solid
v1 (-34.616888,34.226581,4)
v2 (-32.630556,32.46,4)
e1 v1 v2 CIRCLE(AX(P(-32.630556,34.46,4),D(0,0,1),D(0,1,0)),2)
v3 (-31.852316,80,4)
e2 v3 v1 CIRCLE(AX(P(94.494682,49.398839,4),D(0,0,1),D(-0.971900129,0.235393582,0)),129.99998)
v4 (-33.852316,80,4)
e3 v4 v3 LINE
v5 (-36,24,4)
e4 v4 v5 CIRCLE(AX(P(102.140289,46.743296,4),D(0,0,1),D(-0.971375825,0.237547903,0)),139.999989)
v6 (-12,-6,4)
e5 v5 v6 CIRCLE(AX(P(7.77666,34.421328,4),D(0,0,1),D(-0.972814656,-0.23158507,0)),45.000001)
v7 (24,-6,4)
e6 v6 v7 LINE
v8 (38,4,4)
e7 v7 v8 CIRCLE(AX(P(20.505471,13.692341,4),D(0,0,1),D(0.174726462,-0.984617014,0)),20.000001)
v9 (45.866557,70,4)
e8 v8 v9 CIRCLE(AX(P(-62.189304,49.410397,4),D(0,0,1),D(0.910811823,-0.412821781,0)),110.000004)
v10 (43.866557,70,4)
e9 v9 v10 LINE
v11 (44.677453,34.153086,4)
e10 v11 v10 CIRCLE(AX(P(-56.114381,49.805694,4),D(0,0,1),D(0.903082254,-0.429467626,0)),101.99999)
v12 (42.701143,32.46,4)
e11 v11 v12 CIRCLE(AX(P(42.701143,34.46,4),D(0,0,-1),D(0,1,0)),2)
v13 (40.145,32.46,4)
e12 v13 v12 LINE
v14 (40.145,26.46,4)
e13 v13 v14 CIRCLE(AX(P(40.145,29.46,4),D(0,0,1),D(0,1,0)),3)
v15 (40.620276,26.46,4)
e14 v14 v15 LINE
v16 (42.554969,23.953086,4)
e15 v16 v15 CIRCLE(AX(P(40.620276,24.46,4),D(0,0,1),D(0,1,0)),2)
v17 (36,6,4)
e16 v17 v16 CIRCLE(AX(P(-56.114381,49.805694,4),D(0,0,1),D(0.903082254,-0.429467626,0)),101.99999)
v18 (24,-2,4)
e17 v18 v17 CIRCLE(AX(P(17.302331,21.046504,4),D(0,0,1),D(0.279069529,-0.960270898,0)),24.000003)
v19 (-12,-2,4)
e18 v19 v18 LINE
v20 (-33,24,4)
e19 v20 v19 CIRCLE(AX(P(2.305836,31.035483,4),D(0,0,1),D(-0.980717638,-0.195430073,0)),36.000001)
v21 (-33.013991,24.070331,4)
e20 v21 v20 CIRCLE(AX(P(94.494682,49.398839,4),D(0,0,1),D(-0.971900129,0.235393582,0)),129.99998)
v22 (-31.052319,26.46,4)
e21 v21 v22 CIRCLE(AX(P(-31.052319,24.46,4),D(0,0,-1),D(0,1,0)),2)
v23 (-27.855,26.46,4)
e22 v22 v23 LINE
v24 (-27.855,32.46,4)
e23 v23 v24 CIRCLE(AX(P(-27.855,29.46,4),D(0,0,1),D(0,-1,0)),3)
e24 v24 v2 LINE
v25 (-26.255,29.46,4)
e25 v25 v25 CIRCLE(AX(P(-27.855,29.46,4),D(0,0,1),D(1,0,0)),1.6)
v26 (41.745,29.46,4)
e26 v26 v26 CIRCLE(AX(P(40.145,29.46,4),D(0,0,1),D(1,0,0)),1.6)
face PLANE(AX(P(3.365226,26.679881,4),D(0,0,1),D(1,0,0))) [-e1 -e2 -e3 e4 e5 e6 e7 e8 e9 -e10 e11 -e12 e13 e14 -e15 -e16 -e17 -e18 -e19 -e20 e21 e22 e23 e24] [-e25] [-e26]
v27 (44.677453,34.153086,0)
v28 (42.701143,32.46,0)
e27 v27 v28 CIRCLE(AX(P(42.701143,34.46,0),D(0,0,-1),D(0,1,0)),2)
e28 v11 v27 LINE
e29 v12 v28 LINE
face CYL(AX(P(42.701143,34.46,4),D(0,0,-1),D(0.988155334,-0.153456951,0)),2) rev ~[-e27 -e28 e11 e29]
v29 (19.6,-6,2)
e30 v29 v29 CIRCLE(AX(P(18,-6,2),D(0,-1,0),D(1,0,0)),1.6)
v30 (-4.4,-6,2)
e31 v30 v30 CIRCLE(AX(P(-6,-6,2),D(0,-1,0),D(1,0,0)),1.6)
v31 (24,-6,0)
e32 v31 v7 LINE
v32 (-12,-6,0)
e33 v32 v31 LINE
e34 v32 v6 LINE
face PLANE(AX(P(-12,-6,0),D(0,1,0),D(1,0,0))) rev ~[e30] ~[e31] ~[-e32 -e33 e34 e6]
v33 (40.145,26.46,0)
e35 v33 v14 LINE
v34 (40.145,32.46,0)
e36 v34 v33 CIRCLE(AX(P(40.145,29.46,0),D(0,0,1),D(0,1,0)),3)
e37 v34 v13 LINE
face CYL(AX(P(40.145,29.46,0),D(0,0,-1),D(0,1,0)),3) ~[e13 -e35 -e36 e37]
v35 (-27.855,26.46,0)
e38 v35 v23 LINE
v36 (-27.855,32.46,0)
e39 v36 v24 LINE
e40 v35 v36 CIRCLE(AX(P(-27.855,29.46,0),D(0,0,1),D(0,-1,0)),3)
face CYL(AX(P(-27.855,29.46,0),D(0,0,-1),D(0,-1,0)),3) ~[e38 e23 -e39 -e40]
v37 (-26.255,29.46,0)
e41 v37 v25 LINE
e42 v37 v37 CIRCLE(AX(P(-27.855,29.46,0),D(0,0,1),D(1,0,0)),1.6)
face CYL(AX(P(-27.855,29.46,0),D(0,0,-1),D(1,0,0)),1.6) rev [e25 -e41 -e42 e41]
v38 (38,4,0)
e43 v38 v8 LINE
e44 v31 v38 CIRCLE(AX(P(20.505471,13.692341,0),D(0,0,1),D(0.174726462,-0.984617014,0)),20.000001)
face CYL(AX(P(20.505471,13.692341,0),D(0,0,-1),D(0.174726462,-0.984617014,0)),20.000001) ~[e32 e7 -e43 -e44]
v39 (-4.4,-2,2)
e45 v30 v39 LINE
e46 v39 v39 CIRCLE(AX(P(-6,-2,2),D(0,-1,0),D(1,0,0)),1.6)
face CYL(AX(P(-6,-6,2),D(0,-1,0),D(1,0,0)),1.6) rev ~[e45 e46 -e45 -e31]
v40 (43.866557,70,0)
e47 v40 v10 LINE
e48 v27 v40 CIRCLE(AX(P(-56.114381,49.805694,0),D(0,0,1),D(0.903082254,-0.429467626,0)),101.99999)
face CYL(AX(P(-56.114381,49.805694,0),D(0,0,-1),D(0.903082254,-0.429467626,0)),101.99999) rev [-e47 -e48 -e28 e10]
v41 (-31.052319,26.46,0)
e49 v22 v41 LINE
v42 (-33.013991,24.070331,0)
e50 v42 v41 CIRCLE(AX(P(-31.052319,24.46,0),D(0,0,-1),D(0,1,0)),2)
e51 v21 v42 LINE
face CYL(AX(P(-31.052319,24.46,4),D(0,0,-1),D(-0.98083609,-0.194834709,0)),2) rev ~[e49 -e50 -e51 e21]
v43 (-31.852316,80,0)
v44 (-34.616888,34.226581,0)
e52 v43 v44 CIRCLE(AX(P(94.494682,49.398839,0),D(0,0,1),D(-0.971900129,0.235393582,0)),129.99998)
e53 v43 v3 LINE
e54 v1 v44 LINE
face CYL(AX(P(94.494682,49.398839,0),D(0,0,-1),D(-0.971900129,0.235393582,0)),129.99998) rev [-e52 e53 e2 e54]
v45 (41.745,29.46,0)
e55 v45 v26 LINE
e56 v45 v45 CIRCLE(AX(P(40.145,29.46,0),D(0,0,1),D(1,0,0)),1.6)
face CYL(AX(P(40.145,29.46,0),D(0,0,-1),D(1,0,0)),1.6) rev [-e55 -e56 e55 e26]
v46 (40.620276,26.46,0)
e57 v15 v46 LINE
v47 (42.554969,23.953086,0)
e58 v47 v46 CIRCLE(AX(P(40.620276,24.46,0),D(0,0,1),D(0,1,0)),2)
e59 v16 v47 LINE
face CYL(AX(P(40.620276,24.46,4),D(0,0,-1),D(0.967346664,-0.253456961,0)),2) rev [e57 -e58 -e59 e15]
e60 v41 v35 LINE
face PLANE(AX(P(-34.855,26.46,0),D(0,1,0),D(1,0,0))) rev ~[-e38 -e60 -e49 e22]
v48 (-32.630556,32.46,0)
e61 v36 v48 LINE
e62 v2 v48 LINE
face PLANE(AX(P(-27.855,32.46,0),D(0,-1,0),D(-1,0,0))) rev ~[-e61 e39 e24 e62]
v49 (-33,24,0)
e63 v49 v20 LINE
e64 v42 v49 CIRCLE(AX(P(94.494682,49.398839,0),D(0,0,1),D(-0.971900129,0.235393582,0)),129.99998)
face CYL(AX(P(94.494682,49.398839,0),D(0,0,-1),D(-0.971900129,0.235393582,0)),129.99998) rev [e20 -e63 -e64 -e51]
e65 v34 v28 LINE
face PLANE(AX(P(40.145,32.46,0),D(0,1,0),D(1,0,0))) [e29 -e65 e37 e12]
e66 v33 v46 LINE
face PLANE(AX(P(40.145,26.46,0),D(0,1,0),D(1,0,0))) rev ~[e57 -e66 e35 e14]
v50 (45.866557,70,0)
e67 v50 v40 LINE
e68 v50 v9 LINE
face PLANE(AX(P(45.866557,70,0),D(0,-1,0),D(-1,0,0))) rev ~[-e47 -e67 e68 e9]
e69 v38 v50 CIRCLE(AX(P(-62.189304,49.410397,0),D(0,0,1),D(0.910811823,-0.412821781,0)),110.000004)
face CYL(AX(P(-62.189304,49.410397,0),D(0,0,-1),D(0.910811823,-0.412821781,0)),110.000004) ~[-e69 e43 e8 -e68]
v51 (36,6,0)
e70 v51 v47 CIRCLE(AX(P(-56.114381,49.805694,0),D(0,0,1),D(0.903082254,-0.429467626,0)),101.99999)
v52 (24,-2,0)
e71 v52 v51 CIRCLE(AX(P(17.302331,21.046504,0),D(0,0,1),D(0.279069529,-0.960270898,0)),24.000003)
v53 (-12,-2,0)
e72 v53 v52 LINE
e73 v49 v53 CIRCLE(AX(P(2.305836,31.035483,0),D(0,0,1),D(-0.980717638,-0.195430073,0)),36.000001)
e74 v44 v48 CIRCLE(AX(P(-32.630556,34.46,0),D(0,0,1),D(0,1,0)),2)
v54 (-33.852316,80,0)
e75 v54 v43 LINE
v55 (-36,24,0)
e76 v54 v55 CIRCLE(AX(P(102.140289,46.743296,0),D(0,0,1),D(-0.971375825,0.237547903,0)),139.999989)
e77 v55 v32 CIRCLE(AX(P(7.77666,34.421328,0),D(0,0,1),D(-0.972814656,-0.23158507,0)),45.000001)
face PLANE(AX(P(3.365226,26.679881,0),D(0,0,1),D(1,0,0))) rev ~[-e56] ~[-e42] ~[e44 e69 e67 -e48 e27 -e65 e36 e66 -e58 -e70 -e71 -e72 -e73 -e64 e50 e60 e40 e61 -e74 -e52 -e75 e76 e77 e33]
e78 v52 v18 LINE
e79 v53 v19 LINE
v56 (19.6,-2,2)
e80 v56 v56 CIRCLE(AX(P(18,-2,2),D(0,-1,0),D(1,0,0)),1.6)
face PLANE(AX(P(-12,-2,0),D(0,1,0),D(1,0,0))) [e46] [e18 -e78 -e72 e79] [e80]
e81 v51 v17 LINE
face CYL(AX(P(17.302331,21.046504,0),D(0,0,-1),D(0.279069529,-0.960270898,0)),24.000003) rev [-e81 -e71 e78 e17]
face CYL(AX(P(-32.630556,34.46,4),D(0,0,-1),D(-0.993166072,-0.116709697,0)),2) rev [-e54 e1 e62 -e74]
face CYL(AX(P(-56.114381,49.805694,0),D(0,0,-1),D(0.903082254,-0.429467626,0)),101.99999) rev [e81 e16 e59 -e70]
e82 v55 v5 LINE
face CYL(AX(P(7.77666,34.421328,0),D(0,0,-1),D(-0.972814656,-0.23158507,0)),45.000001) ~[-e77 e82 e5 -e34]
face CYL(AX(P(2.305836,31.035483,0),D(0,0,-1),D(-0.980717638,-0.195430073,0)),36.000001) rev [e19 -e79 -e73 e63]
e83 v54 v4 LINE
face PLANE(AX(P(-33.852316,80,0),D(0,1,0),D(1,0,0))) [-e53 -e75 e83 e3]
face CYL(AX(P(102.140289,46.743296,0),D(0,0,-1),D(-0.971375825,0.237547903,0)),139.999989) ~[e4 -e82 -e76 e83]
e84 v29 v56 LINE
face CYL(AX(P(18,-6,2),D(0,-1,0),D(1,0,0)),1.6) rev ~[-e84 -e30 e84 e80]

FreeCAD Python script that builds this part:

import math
import FreeCAD as App
import Part
import Sketcher

V = App.Vector
Q = App.Units.Quantity


def edges_at(feature, points):
    """Names of the edges that pass closest to the given points."""
    edges = feature.Shape.Edges
    near = lambda p: min(range(len(edges)), key=lambda i: edges[i].distToShape(Part.Vertex(*p))[0])
    return sorted({f"Edge{near(p) + 1}" for p in points})

doc = App.newDocument("Part")
body = doc.addObject("PartDesign::Body", "Body")

sketch1 = body.newObject("Sketcher::SketchObject", "Sketch")
sketch1.AttachmentSupport = (doc.getObject("XY_Plane"), [""])
sketch1.MapMode = "FlatFace"
sketch1.addGeometry([
    Part.ArcOfCircle(Part.Circle(V(20.5, 13.7, 0), V(0, 0, 1), 20), math.radians(-80), math.radians(-29)),
    Part.ArcOfCircle(Part.Circle(V(-62.2, 49.4, 0), V(0, 0, 1), 110), math.radians(-24), math.radians(11)),
    Part.LineSegment(V(45.9, 70, 0), V(43.9, 70, 0)),
    Part.ArcOfCircle(Part.Circle(V(-56.1, 49.8, 0), V(0, 0, 1), 102), math.radians(-25), math.radians(11)),
    Part.ArcOfCircle(Part.Circle(V(17.3, 21, 0), V(0, 0, 1), 24), math.radians(-74), math.radians(-39)),
    Part.LineSegment(V(24, -2, 0), V(-12, -2, 0)),
    Part.ArcOfCircle(Part.Circle(V(2.3, 31, 0), V(0, 0, 1), 36), math.radians(-169), math.radians(-113)),
    Part.ArcOfCircle(Part.Circle(V(94.5, 49.4, 0), V(0, 0, 1), 130), math.radians(166), math.radians(191)),
    Part.LineSegment(V(-31.9, 80, 0), V(-33.9, 80, 0)),
    Part.ArcOfCircle(Part.Circle(V(102.1, 46.7, 0), V(0, 0, 1), 140), math.radians(166), math.radians(189)),
    Part.ArcOfCircle(Part.Circle(V(7.8, 34.4, 0), V(0, 0, 1), 45), math.radians(-167), math.radians(-116)),
    Part.LineSegment(V(-12, -6, 0), V(24, -6, 0)),
], False)
sketch1.addConstraint([
    Sketcher.Constraint("Coincident", 0, 2, 1, 1),
    Sketcher.Constraint("Coincident", 1, 2, 2, 1),
    Sketcher.Constraint("Coincident", 2, 2, 3, 2),
    Sketcher.Constraint("Coincident", 3, 1, 4, 2),
    Sketcher.Constraint("Coincident", 4, 1, 5, 1),
    Sketcher.Constraint("Coincident", 5, 2, 6, 2),
    Sketcher.Constraint("Coincident", 6, 1, 7, 2),
    Sketcher.Constraint("Coincident", 7, 1, 8, 1),
    Sketcher.Constraint("Coincident", 8, 2, 9, 1),
    Sketcher.Constraint("Coincident", 9, 2, 10, 1),
    Sketcher.Constraint("Coincident", 10, 2, 11, 1),
    Sketcher.Constraint("Coincident", 11, 2, 0, 1),
    Sketcher.Constraint("Horizontal", 2),
    Sketcher.Constraint("Horizontal", 5),
    Sketcher.Constraint("Horizontal", 8),
    Sketcher.Constraint("Horizontal", 11),
    Sketcher.Constraint("Horizontal", 6, 1, 9, 2),
    Sketcher.Constraint("Vertical", 5, 2, 10, 2),
    Sketcher.Constraint("Vertical", 4, 1, 11, 2),
    Sketcher.Constraint("Equal", 2, 8),
    Sketcher.Constraint("Radius", 0, Q("20.000001 mm")),
    Sketcher.Constraint("Radius", 6, Q("36.000001 mm")),
    Sketcher.Constraint("Radius", 10, Q("45.000001 mm")),
    Sketcher.Constraint("DistanceX", 2, 2, 2, 1, Q("2 mm")),
    Sketcher.Constraint("DistanceX", 5, 2, 5, 1, Q("36 mm")),
    Sketcher.Constraint("DistanceX", -1, 1, 0, 2, Q("38 mm")),
    Sketcher.Constraint("DistanceY", -1, 1, 0, 2, Q("4 mm")),
    Sketcher.Constraint("DistanceY", -1, 1, 1, 2, Q("70 mm")),
    Sketcher.Constraint("DistanceX", -1, 1, 3, 1, Q("36 mm")),
    Sketcher.Constraint("DistanceY", -1, 1, 3, 1, Q("6 mm")),
    Sketcher.Constraint("DistanceX", -1, 1, 4, 1, Q("24 mm")),
    Sketcher.Constraint("DistanceY", 4, 1, -1, 1, Q("2 mm")),
    Sketcher.Constraint("DistanceX", 6, 1, -1, 1, Q("33 mm")),
    Sketcher.Constraint("DistanceY", -1, 1, 6, 1, Q("24 mm")),
    Sketcher.Constraint("DistanceY", -1, 1, 7, 1, Q("80 mm")),
    Sketcher.Constraint("DistanceX", 9, 2, -1, 1, Q("36 mm")),
    Sketcher.Constraint("DistanceY", 10, 2, -1, 1, Q("6 mm")),
    Sketcher.Constraint("Radius", 3, Q("101.99999 mm")),
    Sketcher.Constraint("Radius", 7, Q("129.99998 mm")),
    Sketcher.Constraint("Radius", 9, Q("139.999989 mm")),
    Sketcher.Constraint("Radius", 1, Q("110.000004 mm")),
    Sketcher.Constraint("Radius", 4, Q("24.000003 mm")),
    Sketcher.Constraint("DistanceX", 3, 3, -1, 1, Q("56.114381 mm")),
    Sketcher.Constraint("DistanceX", -1, 1, 7, 3, Q("94.494682 mm")),
])
pad1 = body.newObject("PartDesign::Pad", "Pad")
pad1.Profile = sketch1
pad1.Length = 4

sketch2 = body.newObject("Sketcher::SketchObject", "Sketch001")
sketch2.AttachmentSupport = (doc.getObject("XZ_Plane"), [""])
sketch2.MapMode = "FlatFace"
sketch2.AttachmentOffset = App.Placement(V(0, 0, 6), App.Rotation())
sketch2.addGeometry([
    Part.Circle(V(-6, 2, 0), V(0, 0, 1), 1.6),
    Part.Circle(V(18, 2, 0), V(0, 0, 1), 1.6),
], False)
sketch2.addConstraint([
    Sketcher.Constraint("Equal", 0, 1),
    Sketcher.Constraint("Horizontal", 0, 3, 1, 3),
    Sketcher.Constraint("Diameter", 0, Q("3.2 mm")),
    Sketcher.Constraint("DistanceX", 0, 3, -1, 1, Q("6 mm")),
    Sketcher.Constraint("DistanceY", -1, 1, 0, 3, Q("2 mm")),
    Sketcher.Constraint("DistanceX", -1, 1, 1, 3, Q("18 mm")),
])
pocket1 = body.newObject("PartDesign::Pocket", "Pocket")
pocket1.Profile = sketch2
pocket1.Type = "ThroughAll"
body2 = doc.addObject("PartDesign::Body", "Body001")
body2.AllowCompound = True

sketch3 = body2.newObject("Sketcher::SketchObject", "Sketch002")
sketch3.AttachmentSupport = (doc.getObject("XY_Plane001"), [""])
sketch3.MapMode = "FlatFace"
sketch3.addGeometry([
    Part.ArcOfCircle(Part.Circle(V(-27.9, 29.5, 0), V(0, 0, 1), 3), math.radians(-90), math.radians(90)),
    Part.LineSegment(V(-27.9, 32.5, 0), V(-34.9, 32.5, 0)),
    Part.LineSegment(V(-34.9, 32.5, 0), V(-34.9, 26.5, 0)),
    Part.LineSegment(V(-34.9, 26.5, 0), V(-27.9, 26.5, 0)),
    Part.Circle(V(-27.9, 29.5, 0), V(0, 0, 1), 1.6),
    Part.ArcOfCircle(Part.Circle(V(40.1, 29.5, 0), V(0, 0, 1), 3), math.radians(90), math.radians(270)),
    Part.LineSegment(V(40.1, 26.5, 0), V(44.6, 26.5, 0)),
    Part.LineSegment(V(44.6, 26.5, 0), V(44.6, 32.5, 0)),
    Part.LineSegment(V(44.6, 32.5, 0), V(40.1, 32.5, 0)),
    Part.Circle(V(40.1, 29.5, 0), V(0, 0, 1), 1.6),
], False)
sketch3.addConstraint([
    Sketcher.Constraint("Tangent", 0, 2, 1, 1),
    Sketcher.Constraint("Coincident", 1, 2, 2, 1),
    Sketcher.Constraint("Coincident", 2, 2, 3, 1),
    Sketcher.Constraint("Tangent", 3, 2, 0, 1),
    Sketcher.Constraint("Tangent", 5, 2, 6, 1),
    Sketcher.Constraint("Coincident", 6, 2, 7, 1),
    Sketcher.Constraint("Coincident", 7, 2, 8, 1),
    Sketcher.Constraint("Tangent", 8, 2, 5, 1),
    Sketcher.Constraint("Horizontal", 1),
    Sketcher.Constraint("Vertical", 2),
    Sketcher.Constraint("Horizontal", 3),
    Sketcher.Constraint("Horizontal", 6),
    Sketcher.Constraint("Vertical", 7),
    Sketcher.Constraint("Horizontal", 8),
    Sketcher.Constraint("Coincident", 4, 3, 0, 3),
    Sketcher.Constraint("Coincident", 9, 3, 5, 3),
    Sketcher.Constraint("Equal", 0, 5),
    Sketcher.Constraint("Equal", 4, 9),
    Sketcher.Constraint("Horizontal", 4, 3, 5, 3),
    Sketcher.Constraint("Radius", 0, Q("3 mm")),
    Sketcher.Constraint("Diameter", 4, Q("3.2 mm")),
    Sketcher.Constraint("DistanceX", 1, 2, 1, 1, Q("7 mm")),
    Sketcher.Constraint("DistanceX", 6, 1, 6, 2, Q("4.5 mm")),
    Sketcher.Constraint("DistanceX", 0, 3, 5, 3, Q("68 mm")),
    Sketcher.Constraint("DistanceY", -1, 1, 0, 3, Q("29.46 mm")),
    Sketcher.Constraint("DistanceX", 0, 3, -1, 1, Q("27.855 mm")),
])
pad2 = body2.newObject("PartDesign::Pad", "Pad001")
pad2.Profile = sketch3
pad2.Length = 4
doc.recompute()

boolean = body2.newObject("PartDesign::Boolean", "Boolean")
boolean.Type = "Fuse"
boolean.addObjects([body])
doc.recompute()

fillet = body2.newObject("PartDesign::Fillet", "Fillet")
fillet.Base = (boolean, edges_at(boolean, [
    (-34.397, 32.46, 2),
    (-33.465, 26.46, 2),
    (44.4, 32.46, 2),
    (43.178, 26.46, 2),
]))
fillet.Radius = 2

doc.recompute()
